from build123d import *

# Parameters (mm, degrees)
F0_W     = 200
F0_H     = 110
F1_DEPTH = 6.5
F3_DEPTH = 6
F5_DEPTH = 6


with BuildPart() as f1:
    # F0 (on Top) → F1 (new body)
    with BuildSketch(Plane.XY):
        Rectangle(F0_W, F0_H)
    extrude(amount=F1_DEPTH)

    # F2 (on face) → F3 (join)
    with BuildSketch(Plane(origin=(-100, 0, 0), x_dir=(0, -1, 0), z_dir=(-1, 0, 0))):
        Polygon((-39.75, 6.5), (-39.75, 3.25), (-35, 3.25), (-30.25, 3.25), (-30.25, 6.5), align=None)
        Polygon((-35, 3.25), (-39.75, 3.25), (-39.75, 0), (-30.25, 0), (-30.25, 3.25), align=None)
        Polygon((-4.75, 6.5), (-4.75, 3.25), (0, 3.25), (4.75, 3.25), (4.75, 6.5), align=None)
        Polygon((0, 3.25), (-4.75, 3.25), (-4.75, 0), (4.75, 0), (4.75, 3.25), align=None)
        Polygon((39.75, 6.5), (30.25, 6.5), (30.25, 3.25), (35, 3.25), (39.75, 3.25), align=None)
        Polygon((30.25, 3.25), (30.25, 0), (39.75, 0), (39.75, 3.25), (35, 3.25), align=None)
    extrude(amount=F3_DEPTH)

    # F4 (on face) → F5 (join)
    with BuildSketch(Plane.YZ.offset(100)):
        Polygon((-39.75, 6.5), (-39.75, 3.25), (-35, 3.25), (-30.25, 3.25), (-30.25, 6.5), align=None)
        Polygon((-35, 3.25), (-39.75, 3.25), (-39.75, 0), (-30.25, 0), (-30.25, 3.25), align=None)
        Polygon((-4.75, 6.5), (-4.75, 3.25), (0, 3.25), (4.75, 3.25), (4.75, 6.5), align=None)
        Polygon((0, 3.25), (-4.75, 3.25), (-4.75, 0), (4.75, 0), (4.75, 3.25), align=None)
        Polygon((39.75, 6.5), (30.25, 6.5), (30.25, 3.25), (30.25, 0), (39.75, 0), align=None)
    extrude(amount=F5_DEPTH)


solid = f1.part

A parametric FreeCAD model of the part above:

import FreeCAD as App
import Part
import Sketcher
from FreeCAD import Vector


def add_polygon(sketch, points):
    """Adds a closed chain of lines whose ends are joined by coincident constraints."""
    first, n = sketch.GeometryCount, len(points)
    for a, b in zip(points, points[1:] + points[:1]):
        sketch.addGeometry(Part.LineSegment(App.Vector(*a, 0), App.Vector(*b, 0)), False)
    for i in range(n):
        sketch.addConstraint(Sketcher.Constraint("Coincident", first + i, 2, first + (i + 1) % n, 1))

doc = App.newDocument("Part")
params = doc.addObject("Spreadsheet::Sheet", "Params")
for row, (alias, value) in enumerate([
    ("sketch1_width", "200 mm"),
    ("sketch1_height", "110 mm"),
    ("pad1_length", "6.5 mm"),
    ("sketch2_width", "9.5 mm"),
    ("sketch2_height", "6.5 mm"),
    ("pad2_length", "6 mm"),
    ("sketch3_width", "9.5 mm"),
    ("sketch3_height", "6.5 mm"),
    ("pad3_length", "6 mm"),
], start=1):
    params.set(f"A{row}", alias)
    params.set(f"B{row}", "=" + value)
    params.setAlias(f"B{row}", alias)

body = doc.addObject("PartDesign::Body", "Body")

# Sketch on XY plane
sketch1 = body.newObject("Sketcher::SketchObject", "Sketch")
sketch1.AttachmentSupport = (doc.getObject("XY_Plane"), [""])
sketch1.MapMode = "FlatFace"
add_polygon(sketch1, [(-100, 55), (-100, -55), (100, -55), (100, 55)])  # lines 0-3
sketch1.addConstraint([
    Sketcher.Constraint("Vertical", 0),
    Sketcher.Constraint("Horizontal", 1),
    Sketcher.Constraint("Vertical", 2),
    Sketcher.Constraint("Horizontal", 3),
    Sketcher.Constraint("Symmetric", 0, 2, 2, 2, -1, 1),
    Sketcher.Constraint("DistanceX", 1, 1, 1, 2, 200.0),
    Sketcher.Constraint("DistanceY", 0, 2, 0, 1, 110.0),
])
sketch1.setExpression("Constraints[9]", "Params.sketch1_width")
sketch1.setExpression("Constraints[10]", "Params.sketch1_height")
pad1 = body.newObject("PartDesign::Pad", "Pad")
pad1.Profile = sketch1
pad1.setExpression("Length", "Params.pad1_length")

# Sketch on YZ plane
sketch2 = body.newObject("Sketcher::SketchObject", "Sketch001")
sketch2.AttachmentSupport = (doc.getObject("YZ_Plane"), [""])
sketch2.MapMode = "FlatFace"
sketch2.AttachmentOffset = App.Placement(Vector(0, 0, -100), App.Rotation())
add_polygon(sketch2, [(40, 6), (40, 0), (30, 0), (30, 6)])  # lines 0-3
add_polygon(sketch2, [(5, 6), (5, 0), (-5, 0), (-5, 6)])  # lines 4-7
add_polygon(sketch2, [(-40, 6), (-30, 6), (-30, 0), (-40, 0)])  # lines 8-11
sketch2.addConstraint([
    Sketcher.Constraint("Vertical", 0),
    Sketcher.Constraint("Horizontal", 1),
    Sketcher.Constraint("Vertical", 2),
    Sketcher.Constraint("Horizontal", 3),
    Sketcher.Constraint("Vertical", 4),
    Sketcher.Constraint("Horizontal", 5),
    Sketcher.Constraint("Vertical", 6),
    Sketcher.Constraint("Horizontal", 7),
    Sketcher.Constraint("Horizontal", 8),
    Sketcher.Constraint("Vertical", 9),
    Sketcher.Constraint("Horizontal", 10),
    Sketcher.Constraint("Vertical", 11),
    Sketcher.Constraint("Symmetric", 4, 2, 5, 2, -1, 1),
    Sketcher.Constraint("Symmetric", 1, 2, 9, 2, -1, 1),
    Sketcher.Constraint("Symmetric", 0, 2, 10, 2, -2),
    Sketcher.Constraint("Horizontal", 3, 2, 6, 2),
    Sketcher.Constraint("Horizontal", 7, 2, 8, 2),
    Sketcher.Constraint("Equal", 3, 5),
    Sketcher.Constraint("DistanceX", 1, 2, 1, 1, 9.5),
    Sketcher.Constraint("DistanceY", 0, 2, 0, 1, 6.5),
    Sketcher.Constraint("DistanceX", 4, 2, 0, 2, 35.0),
])
sketch2.setExpression("Constraints[30]", "Params.sketch2_width")
sketch2.setExpression("Constraints[31]", "Params.sketch2_height")
pad2 = body.newObject("PartDesign::Pad", "Pad001")
pad2.Profile = sketch2
pad2.setExpression("Length", "Params.pad2_length")
pad2.Reversed = True

# Sketch on YZ plane
sketch3 = body.newObject("Sketcher::SketchObject", "Sketch002")
sketch3.AttachmentSupport = (doc.getObject("YZ_Plane"), [""])
sketch3.MapMode = "FlatFace"
sketch3.AttachmentOffset = App.Placement(Vector(0, 0, 100), App.Rotation())
add_polygon(sketch3, [(-40, 6), (-40, 0), (-30, 0), (-30, 6)])  # lines 0-3
add_polygon(sketch3, [(-5, 6), (-5, 0), (5, 0), (5, 6)])  # lines 4-7
add_polygon(sketch3, [(40, 6), (30, 6), (30, 0), (40, 0)])  # lines 8-11
sketch3.addConstraint([
    Sketcher.Constraint("Vertical", 0),
    Sketcher.Constraint("Horizontal", 1),
    Sketcher.Constraint("Vertical", 2),
    Sketcher.Constraint("Horizontal", 3),
    Sketcher.Constraint("Vertical", 4),
    Sketcher.Constraint("Horizontal", 5),
    Sketcher.Constraint("Vertical", 6),
    Sketcher.Constraint("Horizontal", 7),
    Sketcher.Constraint("Horizontal", 8),
    Sketcher.Constraint("Vertical", 9),
    Sketcher.Constraint("Horizontal", 10),
    Sketcher.Constraint("Vertical", 11),
    Sketcher.Constraint("Symmetric", 4, 2, 5, 2, -1, 1),
    Sketcher.Constraint("Symmetric", 1, 2, 9, 2, -1, 1),
    Sketcher.Constraint("Symmetric", 0, 2, 10, 2, -2),
    Sketcher.Constraint("Horizontal", 3, 2, 6, 2),
    Sketcher.Constraint("Horizontal", 7, 2, 8, 2),
    Sketcher.Constraint("Equal", 3, 5),
    Sketcher.Constraint("DistanceX", 1, 1, 1, 2, 9.5),
    Sketcher.Constraint("DistanceY", 0, 2, 0, 1, 6.5),
    Sketcher.Constraint("DistanceX", 0, 2, 4, 2, 35.0),
])
sketch3.setExpression("Constraints[30]", "Params.sketch3_width")
sketch3.setExpression("Constraints[31]", "Params.sketch3_height")
pad3 = body.newObject("PartDesign::Pad", "Pad002")
pad3.Profile = sketch3
pad3.setExpression("Length", "Params.pad3_length")

doc.recompute()
